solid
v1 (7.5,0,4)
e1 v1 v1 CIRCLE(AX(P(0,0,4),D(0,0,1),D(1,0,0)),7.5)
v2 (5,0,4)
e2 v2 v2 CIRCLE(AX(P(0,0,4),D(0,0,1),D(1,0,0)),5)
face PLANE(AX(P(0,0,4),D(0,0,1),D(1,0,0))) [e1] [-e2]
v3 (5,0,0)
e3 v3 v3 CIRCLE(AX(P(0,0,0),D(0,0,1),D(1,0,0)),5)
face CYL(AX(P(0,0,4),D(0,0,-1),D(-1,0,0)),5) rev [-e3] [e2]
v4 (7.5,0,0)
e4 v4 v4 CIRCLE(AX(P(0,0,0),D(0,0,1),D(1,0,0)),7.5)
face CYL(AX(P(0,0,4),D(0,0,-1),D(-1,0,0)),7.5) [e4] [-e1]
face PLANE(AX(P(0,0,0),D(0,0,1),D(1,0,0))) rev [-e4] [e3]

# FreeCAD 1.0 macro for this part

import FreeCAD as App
import Part
import Sketcher

doc = App.newDocument("Part")
body = doc.addObject("PartDesign::Body", "Body")

sketch1 = body.newObject("Sketcher::SketchObject", "Sketch")
sketch1.AttachmentSupport = (doc.getObject("XY_Plane"), [""])
sketch1.MapMode = "FlatFace"
sketch1.addGeometry([
    Part.Circle(App.Vector(0, 0, 0), App.Vector(0, 0, 1), 8),
    Part.Circle(App.Vector(0, 0, 0), App.Vector(0, 0, 1), 5),
], False)
sketch1.addConstraint([
    Sketcher.Constraint("Coincident", 0, 3, -1, 1),
    Sketcher.Constraint("Coincident", 1, 3, -1, 1),
    Sketcher.Constraint("Diameter", 0, 15.0),
    Sketcher.Constraint("Diameter", 1, 10.0),
])
pad1 = body.newObject("PartDesign::Pad", "Pad")
pad1.Profile = sketch1
pad1.Length = 4

doc.recompute()
